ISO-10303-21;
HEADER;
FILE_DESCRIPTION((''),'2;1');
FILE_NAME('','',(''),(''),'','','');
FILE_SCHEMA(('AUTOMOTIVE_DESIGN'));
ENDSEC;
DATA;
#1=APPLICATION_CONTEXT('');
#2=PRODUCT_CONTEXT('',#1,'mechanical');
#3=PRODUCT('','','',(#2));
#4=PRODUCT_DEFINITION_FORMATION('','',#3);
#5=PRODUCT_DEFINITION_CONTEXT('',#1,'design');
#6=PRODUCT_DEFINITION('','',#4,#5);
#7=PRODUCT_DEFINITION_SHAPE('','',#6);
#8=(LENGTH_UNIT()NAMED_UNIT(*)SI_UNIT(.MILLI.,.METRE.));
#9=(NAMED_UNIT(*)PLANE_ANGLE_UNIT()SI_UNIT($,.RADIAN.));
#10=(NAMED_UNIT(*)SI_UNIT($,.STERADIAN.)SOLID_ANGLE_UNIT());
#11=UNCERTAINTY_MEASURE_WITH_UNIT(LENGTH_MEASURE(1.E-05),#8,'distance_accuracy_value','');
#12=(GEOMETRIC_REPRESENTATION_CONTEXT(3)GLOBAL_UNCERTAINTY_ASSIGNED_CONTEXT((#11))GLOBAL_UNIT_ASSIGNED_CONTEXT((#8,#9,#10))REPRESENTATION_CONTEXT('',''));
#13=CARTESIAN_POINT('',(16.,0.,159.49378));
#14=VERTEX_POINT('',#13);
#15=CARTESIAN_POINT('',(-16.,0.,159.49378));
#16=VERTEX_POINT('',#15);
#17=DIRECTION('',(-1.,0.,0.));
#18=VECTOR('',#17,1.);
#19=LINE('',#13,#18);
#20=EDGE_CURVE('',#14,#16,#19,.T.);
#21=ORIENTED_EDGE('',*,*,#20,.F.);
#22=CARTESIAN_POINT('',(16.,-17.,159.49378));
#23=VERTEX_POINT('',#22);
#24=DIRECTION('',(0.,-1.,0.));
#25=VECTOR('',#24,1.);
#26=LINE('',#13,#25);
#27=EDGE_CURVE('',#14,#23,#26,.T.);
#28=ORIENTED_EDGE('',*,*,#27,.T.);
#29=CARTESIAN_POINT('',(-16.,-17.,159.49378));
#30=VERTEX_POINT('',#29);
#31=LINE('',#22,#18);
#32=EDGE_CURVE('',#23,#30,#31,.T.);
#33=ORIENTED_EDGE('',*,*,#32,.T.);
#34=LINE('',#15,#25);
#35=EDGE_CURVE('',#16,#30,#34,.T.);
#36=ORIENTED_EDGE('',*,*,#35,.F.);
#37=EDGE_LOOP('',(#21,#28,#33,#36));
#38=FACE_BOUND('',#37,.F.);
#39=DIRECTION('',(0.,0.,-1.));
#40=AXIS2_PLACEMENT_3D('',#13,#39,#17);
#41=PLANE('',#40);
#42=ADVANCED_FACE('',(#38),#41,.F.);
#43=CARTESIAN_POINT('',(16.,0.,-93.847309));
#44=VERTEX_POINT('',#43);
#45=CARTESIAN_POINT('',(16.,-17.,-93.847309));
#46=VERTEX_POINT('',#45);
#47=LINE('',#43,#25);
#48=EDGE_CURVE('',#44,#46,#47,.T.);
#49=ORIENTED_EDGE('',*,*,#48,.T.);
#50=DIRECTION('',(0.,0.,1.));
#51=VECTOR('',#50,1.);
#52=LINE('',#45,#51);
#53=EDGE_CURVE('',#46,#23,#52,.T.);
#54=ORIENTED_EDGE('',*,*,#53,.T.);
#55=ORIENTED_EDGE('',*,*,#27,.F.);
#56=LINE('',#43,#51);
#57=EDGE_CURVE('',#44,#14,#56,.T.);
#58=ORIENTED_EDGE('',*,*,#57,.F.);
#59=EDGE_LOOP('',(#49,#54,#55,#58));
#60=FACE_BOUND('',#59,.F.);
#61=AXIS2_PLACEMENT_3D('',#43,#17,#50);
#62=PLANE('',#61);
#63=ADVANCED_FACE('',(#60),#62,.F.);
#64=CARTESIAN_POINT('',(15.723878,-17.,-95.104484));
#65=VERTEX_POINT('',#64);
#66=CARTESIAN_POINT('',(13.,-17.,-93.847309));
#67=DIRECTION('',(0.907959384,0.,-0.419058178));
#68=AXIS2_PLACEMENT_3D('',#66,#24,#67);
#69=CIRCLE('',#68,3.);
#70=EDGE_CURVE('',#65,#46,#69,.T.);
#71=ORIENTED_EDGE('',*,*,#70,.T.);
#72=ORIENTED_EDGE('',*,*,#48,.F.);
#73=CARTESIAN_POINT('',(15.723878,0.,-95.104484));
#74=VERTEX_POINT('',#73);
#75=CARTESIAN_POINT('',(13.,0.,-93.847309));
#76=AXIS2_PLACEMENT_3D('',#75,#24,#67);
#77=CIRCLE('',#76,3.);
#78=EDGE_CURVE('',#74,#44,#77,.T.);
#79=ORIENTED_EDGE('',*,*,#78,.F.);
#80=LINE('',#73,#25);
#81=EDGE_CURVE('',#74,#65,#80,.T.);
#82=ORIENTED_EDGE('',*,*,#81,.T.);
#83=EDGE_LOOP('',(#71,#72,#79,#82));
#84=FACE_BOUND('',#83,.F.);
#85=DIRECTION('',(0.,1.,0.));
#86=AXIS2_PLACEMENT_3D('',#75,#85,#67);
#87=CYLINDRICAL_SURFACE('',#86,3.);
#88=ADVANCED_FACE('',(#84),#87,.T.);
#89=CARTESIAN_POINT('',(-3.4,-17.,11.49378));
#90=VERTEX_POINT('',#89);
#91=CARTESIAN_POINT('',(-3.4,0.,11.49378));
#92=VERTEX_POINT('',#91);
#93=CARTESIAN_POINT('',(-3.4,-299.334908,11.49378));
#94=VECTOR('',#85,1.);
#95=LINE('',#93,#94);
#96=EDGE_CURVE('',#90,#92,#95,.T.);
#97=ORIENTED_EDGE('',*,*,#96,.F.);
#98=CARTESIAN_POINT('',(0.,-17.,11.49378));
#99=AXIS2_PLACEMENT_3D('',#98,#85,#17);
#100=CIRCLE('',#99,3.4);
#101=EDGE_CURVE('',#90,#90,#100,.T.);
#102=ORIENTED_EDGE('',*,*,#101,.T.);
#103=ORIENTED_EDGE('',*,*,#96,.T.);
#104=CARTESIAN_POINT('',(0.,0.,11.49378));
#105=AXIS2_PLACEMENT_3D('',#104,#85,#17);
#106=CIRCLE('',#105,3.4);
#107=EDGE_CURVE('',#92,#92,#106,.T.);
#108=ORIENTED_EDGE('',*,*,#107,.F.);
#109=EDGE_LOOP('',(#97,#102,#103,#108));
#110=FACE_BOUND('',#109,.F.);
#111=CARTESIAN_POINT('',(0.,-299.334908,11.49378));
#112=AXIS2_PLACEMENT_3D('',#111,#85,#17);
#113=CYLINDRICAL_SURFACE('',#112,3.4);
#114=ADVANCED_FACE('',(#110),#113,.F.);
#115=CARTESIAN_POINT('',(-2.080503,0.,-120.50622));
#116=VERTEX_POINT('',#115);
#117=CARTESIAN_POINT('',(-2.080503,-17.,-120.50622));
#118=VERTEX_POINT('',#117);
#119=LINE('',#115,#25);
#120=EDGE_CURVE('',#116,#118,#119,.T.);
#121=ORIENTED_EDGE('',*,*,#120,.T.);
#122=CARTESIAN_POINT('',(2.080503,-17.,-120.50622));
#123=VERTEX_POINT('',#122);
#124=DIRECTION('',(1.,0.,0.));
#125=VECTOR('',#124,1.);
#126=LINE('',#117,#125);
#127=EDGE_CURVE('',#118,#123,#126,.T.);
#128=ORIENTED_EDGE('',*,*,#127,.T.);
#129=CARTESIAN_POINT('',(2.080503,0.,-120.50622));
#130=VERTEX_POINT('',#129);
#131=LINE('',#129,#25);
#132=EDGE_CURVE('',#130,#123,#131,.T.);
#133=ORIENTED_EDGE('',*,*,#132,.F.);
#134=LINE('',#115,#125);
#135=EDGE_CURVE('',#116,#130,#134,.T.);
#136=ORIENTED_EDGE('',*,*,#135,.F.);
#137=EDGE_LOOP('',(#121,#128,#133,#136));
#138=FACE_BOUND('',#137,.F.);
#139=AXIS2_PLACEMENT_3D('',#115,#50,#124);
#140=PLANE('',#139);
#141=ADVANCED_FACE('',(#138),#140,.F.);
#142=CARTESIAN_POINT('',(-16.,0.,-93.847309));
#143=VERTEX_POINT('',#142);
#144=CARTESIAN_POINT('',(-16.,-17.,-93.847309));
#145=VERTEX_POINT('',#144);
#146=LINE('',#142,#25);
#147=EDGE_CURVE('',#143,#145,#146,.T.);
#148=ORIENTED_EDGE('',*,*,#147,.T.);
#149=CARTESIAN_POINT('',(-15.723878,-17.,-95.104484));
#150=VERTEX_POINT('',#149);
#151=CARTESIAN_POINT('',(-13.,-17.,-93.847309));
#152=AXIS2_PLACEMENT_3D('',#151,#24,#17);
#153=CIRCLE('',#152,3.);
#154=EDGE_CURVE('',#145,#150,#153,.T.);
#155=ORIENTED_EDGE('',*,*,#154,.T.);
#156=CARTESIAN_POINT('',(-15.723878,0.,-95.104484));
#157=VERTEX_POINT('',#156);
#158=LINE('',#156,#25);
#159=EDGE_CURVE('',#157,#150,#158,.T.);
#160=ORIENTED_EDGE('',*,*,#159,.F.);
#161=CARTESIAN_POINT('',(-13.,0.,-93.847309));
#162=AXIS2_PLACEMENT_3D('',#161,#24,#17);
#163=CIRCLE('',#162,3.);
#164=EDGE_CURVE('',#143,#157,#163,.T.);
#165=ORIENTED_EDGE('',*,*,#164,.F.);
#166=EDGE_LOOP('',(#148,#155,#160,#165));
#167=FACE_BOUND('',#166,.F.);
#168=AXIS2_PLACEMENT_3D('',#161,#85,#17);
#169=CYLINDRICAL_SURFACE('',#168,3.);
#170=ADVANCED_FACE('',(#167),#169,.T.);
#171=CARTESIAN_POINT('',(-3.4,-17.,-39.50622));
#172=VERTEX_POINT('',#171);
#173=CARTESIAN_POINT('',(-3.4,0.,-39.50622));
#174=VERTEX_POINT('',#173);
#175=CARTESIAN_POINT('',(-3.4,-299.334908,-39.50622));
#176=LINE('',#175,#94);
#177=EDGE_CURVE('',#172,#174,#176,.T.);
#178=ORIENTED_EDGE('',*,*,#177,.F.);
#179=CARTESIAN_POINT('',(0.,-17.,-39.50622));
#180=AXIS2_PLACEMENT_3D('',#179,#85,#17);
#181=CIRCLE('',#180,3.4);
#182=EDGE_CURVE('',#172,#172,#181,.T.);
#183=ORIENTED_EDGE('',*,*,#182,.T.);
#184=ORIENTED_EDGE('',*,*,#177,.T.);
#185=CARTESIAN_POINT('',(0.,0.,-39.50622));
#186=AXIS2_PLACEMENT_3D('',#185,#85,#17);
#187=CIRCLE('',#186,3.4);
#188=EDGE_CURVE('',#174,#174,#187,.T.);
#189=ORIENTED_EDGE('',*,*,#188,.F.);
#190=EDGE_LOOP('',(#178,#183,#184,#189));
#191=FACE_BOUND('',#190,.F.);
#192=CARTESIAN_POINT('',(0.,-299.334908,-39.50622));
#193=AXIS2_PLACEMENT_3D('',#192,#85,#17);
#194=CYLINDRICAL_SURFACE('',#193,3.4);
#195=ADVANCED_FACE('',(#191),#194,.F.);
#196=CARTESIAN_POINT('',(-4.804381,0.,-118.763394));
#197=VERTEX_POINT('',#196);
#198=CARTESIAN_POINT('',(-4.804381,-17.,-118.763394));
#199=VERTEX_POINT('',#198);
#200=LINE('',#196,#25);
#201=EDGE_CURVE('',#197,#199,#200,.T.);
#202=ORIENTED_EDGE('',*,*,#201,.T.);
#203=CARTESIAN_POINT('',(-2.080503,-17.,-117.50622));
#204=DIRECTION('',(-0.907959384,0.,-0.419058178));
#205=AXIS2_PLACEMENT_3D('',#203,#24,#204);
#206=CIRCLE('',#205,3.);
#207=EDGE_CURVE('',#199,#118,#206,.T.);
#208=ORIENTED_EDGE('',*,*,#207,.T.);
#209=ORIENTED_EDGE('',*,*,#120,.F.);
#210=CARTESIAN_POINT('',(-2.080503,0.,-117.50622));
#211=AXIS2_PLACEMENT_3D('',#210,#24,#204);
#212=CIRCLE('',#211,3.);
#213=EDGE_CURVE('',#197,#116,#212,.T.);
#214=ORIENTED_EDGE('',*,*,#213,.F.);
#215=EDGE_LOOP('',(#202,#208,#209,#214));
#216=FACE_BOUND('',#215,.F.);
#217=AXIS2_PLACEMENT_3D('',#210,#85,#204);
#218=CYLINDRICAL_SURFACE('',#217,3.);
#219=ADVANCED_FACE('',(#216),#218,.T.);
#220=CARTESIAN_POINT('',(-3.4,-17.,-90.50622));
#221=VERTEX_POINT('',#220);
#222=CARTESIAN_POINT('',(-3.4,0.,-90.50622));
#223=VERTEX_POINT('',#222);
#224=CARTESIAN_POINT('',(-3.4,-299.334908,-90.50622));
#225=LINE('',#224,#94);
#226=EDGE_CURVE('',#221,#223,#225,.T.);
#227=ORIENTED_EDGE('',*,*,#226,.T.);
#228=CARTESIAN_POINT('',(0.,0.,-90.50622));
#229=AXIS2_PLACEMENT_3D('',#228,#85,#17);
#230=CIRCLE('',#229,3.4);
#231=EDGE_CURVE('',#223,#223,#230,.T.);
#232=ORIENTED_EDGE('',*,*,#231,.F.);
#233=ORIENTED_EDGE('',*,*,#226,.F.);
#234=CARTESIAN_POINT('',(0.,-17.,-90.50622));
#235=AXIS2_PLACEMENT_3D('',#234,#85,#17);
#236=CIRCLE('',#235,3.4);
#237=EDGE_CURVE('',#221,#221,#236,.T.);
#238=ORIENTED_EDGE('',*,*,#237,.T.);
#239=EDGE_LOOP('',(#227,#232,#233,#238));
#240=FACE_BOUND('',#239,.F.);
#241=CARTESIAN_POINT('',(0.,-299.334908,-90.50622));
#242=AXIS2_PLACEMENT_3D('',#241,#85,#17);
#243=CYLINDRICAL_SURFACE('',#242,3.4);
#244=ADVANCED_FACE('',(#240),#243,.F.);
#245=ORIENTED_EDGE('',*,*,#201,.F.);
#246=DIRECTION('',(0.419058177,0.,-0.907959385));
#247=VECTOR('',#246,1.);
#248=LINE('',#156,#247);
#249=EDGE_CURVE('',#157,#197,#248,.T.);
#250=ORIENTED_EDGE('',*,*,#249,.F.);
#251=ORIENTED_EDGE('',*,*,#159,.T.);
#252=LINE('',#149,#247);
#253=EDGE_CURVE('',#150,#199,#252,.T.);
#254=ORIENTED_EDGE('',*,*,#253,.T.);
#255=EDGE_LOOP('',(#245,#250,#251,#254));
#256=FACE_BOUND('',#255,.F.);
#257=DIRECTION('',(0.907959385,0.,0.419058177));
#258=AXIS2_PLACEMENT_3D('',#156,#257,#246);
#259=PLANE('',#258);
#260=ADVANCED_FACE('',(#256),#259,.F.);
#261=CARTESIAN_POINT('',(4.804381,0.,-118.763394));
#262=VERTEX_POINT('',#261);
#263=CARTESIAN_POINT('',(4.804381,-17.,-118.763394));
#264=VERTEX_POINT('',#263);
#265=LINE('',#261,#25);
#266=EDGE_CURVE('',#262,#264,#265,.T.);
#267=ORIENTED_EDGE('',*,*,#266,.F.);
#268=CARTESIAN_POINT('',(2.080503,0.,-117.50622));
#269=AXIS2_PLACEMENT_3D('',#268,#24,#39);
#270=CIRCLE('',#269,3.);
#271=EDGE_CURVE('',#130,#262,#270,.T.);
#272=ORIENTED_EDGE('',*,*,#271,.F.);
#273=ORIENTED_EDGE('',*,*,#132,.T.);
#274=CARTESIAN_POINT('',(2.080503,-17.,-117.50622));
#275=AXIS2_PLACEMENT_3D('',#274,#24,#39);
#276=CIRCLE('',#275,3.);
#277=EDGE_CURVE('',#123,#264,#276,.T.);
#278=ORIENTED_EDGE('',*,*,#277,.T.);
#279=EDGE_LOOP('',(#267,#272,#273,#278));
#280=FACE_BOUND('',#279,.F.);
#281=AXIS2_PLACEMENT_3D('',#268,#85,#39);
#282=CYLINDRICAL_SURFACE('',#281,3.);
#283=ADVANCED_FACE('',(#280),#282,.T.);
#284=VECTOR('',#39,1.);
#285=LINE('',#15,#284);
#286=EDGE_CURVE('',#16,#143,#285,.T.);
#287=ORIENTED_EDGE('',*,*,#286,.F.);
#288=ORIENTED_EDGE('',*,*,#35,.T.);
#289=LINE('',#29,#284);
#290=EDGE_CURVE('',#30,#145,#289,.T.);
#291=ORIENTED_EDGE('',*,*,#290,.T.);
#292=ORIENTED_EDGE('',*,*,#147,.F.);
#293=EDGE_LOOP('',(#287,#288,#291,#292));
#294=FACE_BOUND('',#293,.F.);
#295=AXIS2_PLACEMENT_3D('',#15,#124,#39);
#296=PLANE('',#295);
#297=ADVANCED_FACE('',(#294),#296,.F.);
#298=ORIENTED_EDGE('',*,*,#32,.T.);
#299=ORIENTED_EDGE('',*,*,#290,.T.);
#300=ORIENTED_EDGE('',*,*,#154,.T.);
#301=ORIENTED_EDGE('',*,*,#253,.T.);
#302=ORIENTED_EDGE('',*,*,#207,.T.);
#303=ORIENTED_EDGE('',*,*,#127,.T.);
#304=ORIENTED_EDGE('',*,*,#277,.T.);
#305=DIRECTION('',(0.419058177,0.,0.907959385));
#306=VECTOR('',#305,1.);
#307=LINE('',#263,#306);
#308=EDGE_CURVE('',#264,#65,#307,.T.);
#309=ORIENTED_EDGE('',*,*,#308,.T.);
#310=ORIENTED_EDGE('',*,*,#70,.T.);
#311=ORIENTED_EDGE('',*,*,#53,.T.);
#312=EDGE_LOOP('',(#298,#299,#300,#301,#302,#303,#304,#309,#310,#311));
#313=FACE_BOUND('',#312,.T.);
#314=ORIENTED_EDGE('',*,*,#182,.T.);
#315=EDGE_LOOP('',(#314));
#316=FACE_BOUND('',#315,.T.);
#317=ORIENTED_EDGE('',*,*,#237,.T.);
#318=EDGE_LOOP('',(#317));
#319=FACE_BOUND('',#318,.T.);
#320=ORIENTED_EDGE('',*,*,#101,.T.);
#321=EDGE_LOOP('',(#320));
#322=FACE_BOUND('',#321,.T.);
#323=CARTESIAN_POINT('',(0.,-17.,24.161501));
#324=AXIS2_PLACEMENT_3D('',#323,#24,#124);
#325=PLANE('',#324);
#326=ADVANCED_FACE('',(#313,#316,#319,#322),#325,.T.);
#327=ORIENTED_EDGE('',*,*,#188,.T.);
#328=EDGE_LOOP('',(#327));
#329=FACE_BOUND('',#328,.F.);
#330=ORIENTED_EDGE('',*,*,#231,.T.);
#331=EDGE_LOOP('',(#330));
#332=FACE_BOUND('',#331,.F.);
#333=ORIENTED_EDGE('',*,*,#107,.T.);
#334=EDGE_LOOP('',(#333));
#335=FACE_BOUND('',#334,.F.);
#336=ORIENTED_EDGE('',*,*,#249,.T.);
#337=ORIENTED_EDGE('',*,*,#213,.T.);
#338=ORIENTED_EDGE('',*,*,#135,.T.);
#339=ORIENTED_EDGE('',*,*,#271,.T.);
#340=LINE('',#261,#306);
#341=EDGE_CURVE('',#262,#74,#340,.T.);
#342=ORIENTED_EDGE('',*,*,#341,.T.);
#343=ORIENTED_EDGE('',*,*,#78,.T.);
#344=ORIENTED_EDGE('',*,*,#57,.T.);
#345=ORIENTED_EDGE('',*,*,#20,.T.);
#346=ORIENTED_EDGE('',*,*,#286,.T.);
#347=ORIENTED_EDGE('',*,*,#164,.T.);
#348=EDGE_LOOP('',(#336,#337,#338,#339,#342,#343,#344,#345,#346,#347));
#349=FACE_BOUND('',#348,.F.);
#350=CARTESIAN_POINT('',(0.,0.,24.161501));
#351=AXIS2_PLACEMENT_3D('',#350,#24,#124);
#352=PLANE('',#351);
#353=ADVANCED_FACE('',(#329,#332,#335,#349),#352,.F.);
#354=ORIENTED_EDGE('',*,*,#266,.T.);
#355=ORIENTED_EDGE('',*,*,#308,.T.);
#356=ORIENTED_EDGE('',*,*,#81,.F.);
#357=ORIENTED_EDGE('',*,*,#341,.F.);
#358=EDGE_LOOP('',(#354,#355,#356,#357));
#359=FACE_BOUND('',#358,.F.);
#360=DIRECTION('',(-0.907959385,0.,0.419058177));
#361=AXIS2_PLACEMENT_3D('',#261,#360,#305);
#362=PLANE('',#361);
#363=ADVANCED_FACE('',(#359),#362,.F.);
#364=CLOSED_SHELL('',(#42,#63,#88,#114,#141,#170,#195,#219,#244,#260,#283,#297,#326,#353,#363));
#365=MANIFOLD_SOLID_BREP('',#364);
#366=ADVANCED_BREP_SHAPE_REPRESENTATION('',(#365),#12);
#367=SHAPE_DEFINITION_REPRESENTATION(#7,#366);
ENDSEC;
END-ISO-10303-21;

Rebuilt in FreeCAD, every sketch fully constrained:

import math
import FreeCAD as App
import Part
import Sketcher
from FreeCAD import Vector

doc = App.newDocument("Part")
body = doc.addObject("PartDesign::Body", "Body")

# Sketch on XZ plane
sketch1 = body.newObject("Sketcher::SketchObject", "Sketch")
sketch1.AttachmentSupport = (doc.getObject("XZ_Plane"), [""])
sketch1.MapMode = "FlatFace"
sketch1.addGeometry([
    Part.LineSegment(Vector(-16, 159.5, 0), Vector(-16, -93.8, 0)),  # 0
    Part.ArcOfCircle(Part.Circle(Vector(-13, -93.8, 0), Vector(0, 0, 1), 3), math.radians(180), math.radians(205)),  # 1
    Part.LineSegment(Vector(-15.7, -95.1, 0), Vector(-4.8, -118.8, 0)),  # 2
    Part.ArcOfCircle(Part.Circle(Vector(-2.1, -117.5, 0), Vector(0, 0, 1), 3), math.radians(-155), math.radians(-90)),  # 3
    Part.LineSegment(Vector(-2.1, -120.5, 0), Vector(2.1, -120.5, 0)),  # 4
    Part.ArcOfCircle(Part.Circle(Vector(2.1, -117.5, 0), Vector(0, 0, 1), 3), math.radians(-90), math.radians(-25)),  # 5
    Part.LineSegment(Vector(4.8, -118.8, 0), Vector(15.7, -95.1, 0)),  # 6
    Part.ArcOfCircle(Part.Circle(Vector(13, -93.8, 0), Vector(0, 0, 1), 3), math.radians(-25), math.radians(0)),  # 7
    Part.LineSegment(Vector(16, -93.8, 0), Vector(16, 159.5, 0)),  # 8
    Part.LineSegment(Vector(16, 159.5, 0), Vector(-16, 159.5, 0)),  # 9
], False)
sketch1.addConstraint([
    Sketcher.Constraint("Tangent", 0, 2, 1, 1),
    Sketcher.Constraint("Tangent", 1, 2, 2, 1),
    Sketcher.Constraint("Tangent", 2, 2, 3, 1),
    Sketcher.Constraint("Tangent", 3, 2, 4, 1),
    Sketcher.Constraint("Tangent", 4, 2, 5, 1),
    Sketcher.Constraint("Tangent", 5, 2, 6, 1),
    Sketcher.Constraint("Tangent", 6, 2, 7, 1),
    Sketcher.Constraint("Tangent", 7, 2, 8, 1),
    Sketcher.Constraint("Coincident", 8, 2, 9, 1),
    Sketcher.Constraint("Coincident", 9, 2, 0, 1),
    Sketcher.Constraint("Vertical", 0),
    Sketcher.Constraint("Horizontal", 4),
    Sketcher.Constraint("Vertical", 8),
    Sketcher.Constraint("Horizontal", 9),
    Sketcher.Constraint("Equal", 1, 3),
    Sketcher.Constraint("Equal", 3, 5),
    Sketcher.Constraint("Equal", 5, 7),
    Sketcher.Constraint("Symmetric", 1, 3, 7, 3, -2),
    Sketcher.Constraint("Horizontal", 2, 2, 5, 2),
    Sketcher.Constraint("Radius", 1, 3.0),
    Sketcher.Constraint("DistanceX", 9, 2, 9, 1, 32.0),
    Sketcher.Constraint("DistanceY", 0, 2, 0, 1, 253.341089),
    Sketcher.Constraint("DistanceX", 4, 1, 4, 2, 4.161006),
    Sketcher.Constraint("DistanceY", 1, 3, -1, 1, 93.847309),
    Sketcher.Constraint("DistanceY", 3, 3, -1, 1, 117.50622),
])
pad1 = body.newObject("PartDesign::Pad", "Pad")
pad1.Profile = sketch1
pad1.Length = 17

# Sketch on XZ plane
sketch2 = body.newObject("Sketcher::SketchObject", "Sketch001")
sketch2.AttachmentSupport = (doc.getObject("XZ_Plane"), [""])
sketch2.MapMode = "FlatFace"
sketch2.AttachmentOffset = App.Placement(Vector(0, 0, 17), App.Rotation())
sketch2.addGeometry([
    Part.Circle(Vector(0, 11.5, 0), Vector(0, 0, 1), 3.4),
    Part.Circle(Vector(0, -39.5, 0), Vector(0, 0, 1), 3.4),
    Part.Circle(Vector(0, -90.5, 0), Vector(0, 0, 1), 3.4),
], False)
sketch2.addConstraint([
    Sketcher.Constraint("Equal", 0, 1),
    Sketcher.Constraint("Equal", 1, 2),
    Sketcher.Constraint("PointOnObject", 0, 3, -2),
    Sketcher.Constraint("PointOnObject", 1, 3, -2),
    Sketcher.Constraint("PointOnObject", 2, 3, -2),
    Sketcher.Constraint("Diameter", 0, 6.8),
    Sketcher.Constraint("DistanceY", 1, 3, 0, 3, 51.0),
    Sketcher.Constraint("DistanceY", 2, 3, 1, 3, 51.0),
    Sketcher.Constraint("DistanceY", -1, 1, 0, 3, 11.49378),
])
doc.recompute()
hole = body.newObject("PartDesign::Hole", "Hole")
hole.Profile = sketch2
hole.ThreadType = "None"
hole.Diameter = 6.8
hole.DepthType = "ThroughAll"

doc.recompute()
